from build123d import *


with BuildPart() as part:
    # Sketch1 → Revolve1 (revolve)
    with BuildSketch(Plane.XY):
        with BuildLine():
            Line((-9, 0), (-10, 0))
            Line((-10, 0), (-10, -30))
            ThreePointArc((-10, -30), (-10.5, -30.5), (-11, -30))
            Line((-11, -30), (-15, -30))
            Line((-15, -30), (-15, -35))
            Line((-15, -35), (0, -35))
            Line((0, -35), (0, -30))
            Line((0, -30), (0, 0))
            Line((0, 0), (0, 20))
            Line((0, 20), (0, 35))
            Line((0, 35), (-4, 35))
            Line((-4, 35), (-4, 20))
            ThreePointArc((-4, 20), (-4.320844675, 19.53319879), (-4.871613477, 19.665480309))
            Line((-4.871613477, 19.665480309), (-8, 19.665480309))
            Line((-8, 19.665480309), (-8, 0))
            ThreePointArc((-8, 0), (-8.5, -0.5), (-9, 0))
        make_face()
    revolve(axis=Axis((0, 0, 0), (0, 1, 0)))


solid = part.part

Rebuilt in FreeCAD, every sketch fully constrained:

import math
import FreeCAD as App
import Part
import Sketcher
from FreeCAD import Vector
Q = App.Units.Quantity

doc = App.newDocument("Part")
body = doc.addObject("PartDesign::Body", "Body")

# Sketch on XY plane
sketch1 = body.newObject("Sketcher::SketchObject", "Sketch")
sketch1.AttachmentSupport = (doc.getObject("XY_Plane"), [""])
sketch1.MapMode = "FlatFace"
sketch1.addGeometry([
    Part.LineSegment(Vector(-9, 0, 0), Vector(-10, 0, 0)),  # 0
    Part.LineSegment(Vector(-10, 0, 0), Vector(-10, -30, 0)),  # 1
    Part.ArcOfCircle(Part.Circle(Vector(-10.5, -30, 0), Vector(0, 0, 1), 0.5), math.radians(180), math.radians(360)),  # 2
    Part.LineSegment(Vector(-11, -30, 0), Vector(-15, -30, 0)),  # 3
    Part.LineSegment(Vector(-15, -30, 0), Vector(-15, -35, 0)),  # 4
    Part.LineSegment(Vector(-15, -35, 0), Vector(0, -35, 0)),  # 5
    Part.LineSegment(Vector(0, -35, 0), Vector(0, 35, 0)),  # 6
    Part.LineSegment(Vector(0, 35, 0), Vector(-4, 35, 0)),  # 7
    Part.LineSegment(Vector(-4, 35, 0), Vector(-4, 20, 0)),  # 8
    Part.ArcOfCircle(Part.Circle(Vector(-4.5, 20, 0), Vector(0, 0, 1), 0.5), math.radians(-138), math.radians(0)),  # 9
    Part.LineSegment(Vector(-4.9, 19.7, 0), Vector(-8, 19.7, 0)),  # 10
    Part.LineSegment(Vector(-8, 19.7, 0), Vector(-8, 0, 0)),  # 11
    Part.ArcOfCircle(Part.Circle(Vector(-8.5, 0, 0), Vector(0, 0, 1), 0.5), math.radians(180), math.radians(360)),  # 12
], False)
sketch1.addConstraint([
    Sketcher.Constraint("Coincident", 0, 2, 1, 1),
    Sketcher.Constraint("Tangent", 1, 2, 2, 2),
    Sketcher.Constraint("Coincident", 2, 1, 3, 1),
    Sketcher.Constraint("Coincident", 3, 2, 4, 1),
    Sketcher.Constraint("Coincident", 4, 2, 5, 1),
    Sketcher.Constraint("Coincident", 5, 2, 6, 1),
    Sketcher.Constraint("Coincident", 6, 2, 7, 1),
    Sketcher.Constraint("Coincident", 7, 2, 8, 1),
    Sketcher.Constraint("Tangent", 8, 2, 9, 2),
    Sketcher.Constraint("Coincident", 9, 1, 10, 1),
    Sketcher.Constraint("Coincident", 10, 2, 11, 1),
    Sketcher.Constraint("Tangent", 11, 2, 12, 2),
    Sketcher.Constraint("Coincident", 12, 1, 0, 1),
    Sketcher.Constraint("Horizontal", 0),
    Sketcher.Constraint("Vertical", 1),
    Sketcher.Constraint("Horizontal", 3),
    Sketcher.Constraint("Vertical", 4),
    Sketcher.Constraint("Horizontal", 5),
    Sketcher.Constraint("Vertical", 6),
    Sketcher.Constraint("Horizontal", 7),
    Sketcher.Constraint("Vertical", 8),
    Sketcher.Constraint("Horizontal", 10),
    Sketcher.Constraint("Vertical", 11),
    Sketcher.Constraint("Equal", 2, 9),
    Sketcher.Constraint("Equal", 9, 12),
    Sketcher.Constraint("Symmetric", 5, 2, 6, 2, -1, 1),
    Sketcher.Constraint("PointOnObject", 12, 3, -1),
    Sketcher.Constraint("PointOnObject", 0, 2, -1),
    Sketcher.Constraint("Horizontal", 1, 2, 2, 1),
    Sketcher.Constraint("Equal", 3, 7),
    Sketcher.Constraint("Equal", 5, 8),
    Sketcher.Constraint("Radius", 2, Q("0.5 mm")),
    Sketcher.Constraint("DistanceX", 0, 2, 0, 1, Q("1 mm")),
    Sketcher.Constraint("DistanceX", 3, 2, 3, 1, Q("4 mm")),
    Sketcher.Constraint("DistanceX", 5, 1, 5, 2, Q("15 mm")),
    Sketcher.Constraint("DistanceY", 1, 2, 1, 1, Q("30 mm")),
    Sketcher.Constraint("DistanceY", 4, 2, 4, 1, Q("5 mm")),
    Sketcher.Constraint("DistanceY", 11, 2, 11, 1, Q("19.66548 mm")),
])
revolution = body.newObject("PartDesign::Revolution", "Revolution")
revolution.Profile = sketch1
revolution.ReferenceAxis = (sketch1, ["V_Axis"])
revolution.Angle = 360

doc.recompute()
